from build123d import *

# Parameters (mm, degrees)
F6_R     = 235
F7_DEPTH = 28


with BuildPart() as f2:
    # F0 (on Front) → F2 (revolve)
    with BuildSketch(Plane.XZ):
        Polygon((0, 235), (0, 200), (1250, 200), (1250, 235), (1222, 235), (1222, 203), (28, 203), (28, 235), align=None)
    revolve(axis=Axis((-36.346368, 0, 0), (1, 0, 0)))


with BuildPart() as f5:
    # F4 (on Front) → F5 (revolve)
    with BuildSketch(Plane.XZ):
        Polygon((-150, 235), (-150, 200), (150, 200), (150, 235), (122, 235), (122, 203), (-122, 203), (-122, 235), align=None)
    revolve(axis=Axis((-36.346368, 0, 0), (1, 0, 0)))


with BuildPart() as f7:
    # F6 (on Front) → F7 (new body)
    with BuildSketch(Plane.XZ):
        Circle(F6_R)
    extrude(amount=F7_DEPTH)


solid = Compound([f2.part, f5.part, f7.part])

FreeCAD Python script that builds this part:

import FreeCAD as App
import Part
import Sketcher

V = App.Vector
Q = App.Units.Quantity


def add_polygon(sketch, points):
    """Adds a closed chain of lines whose ends are joined by coincident constraints."""
    first, n = sketch.GeometryCount, len(points)
    for a, b in zip(points, points[1:] + points[:1]):
        sketch.addGeometry(Part.LineSegment(App.Vector(*a, 0), App.Vector(*b, 0)), False)
    for i in range(n):
        sketch.addConstraint(Sketcher.Constraint("Coincident", first + i, 2, first + (i + 1) % n, 1))

doc = App.newDocument("Part")
body = doc.addObject("PartDesign::Body", "Body")

# Sketch on XZ plane
sketch1 = body.newObject("Sketcher::SketchObject", "Sketch")
sketch1.AttachmentSupport = (doc.getObject("XZ_Plane"), [""])
sketch1.MapMode = "FlatFace"
add_polygon(sketch1, [(0, 235), (0, 200), (1250, 200), (1250, 235), (1222, 235), (1222, 203), (28, 203), (28, 235)])  # lines 0-7
sketch1.addConstraint([
    Sketcher.Constraint("Vertical", 0),
    Sketcher.Constraint("Horizontal", 1),
    Sketcher.Constraint("Vertical", 2),
    Sketcher.Constraint("Horizontal", 3),
    Sketcher.Constraint("Vertical", 4),
    Sketcher.Constraint("Horizontal", 5),
    Sketcher.Constraint("Vertical", 6),
    Sketcher.Constraint("Horizontal", 7),
    Sketcher.Constraint("PointOnObject", 0, 2, -2),
    Sketcher.Constraint("Horizontal", 3, 2, 6, 2),
    Sketcher.Constraint("Equal", 3, 7),
    Sketcher.Constraint("DistanceX", 1, 1, 1, 2, Q("1250 mm")),
    Sketcher.Constraint("DistanceX", 3, 2, 3, 1, Q("28 mm")),
    Sketcher.Constraint("DistanceY", 0, 2, 0, 1, Q("35 mm")),
    Sketcher.Constraint("DistanceY", 4, 2, 4, 1, Q("32 mm")),
    Sketcher.Constraint("DistanceY", -1, 1, 0, 2, Q("200 mm")),
])
revolution = body.newObject("PartDesign::Revolution", "Revolution")
revolution.Profile = sketch1
revolution.ReferenceAxis = (sketch1, ["H_Axis"])
revolution.Angle = 360
body2 = doc.addObject("PartDesign::Body", "Body001")

# Sketch on XZ plane
sketch2 = body2.newObject("Sketcher::SketchObject", "Sketch001")
sketch2.AttachmentSupport = (doc.getObject("XZ_Plane001"), [""])
sketch2.MapMode = "FlatFace"
add_polygon(sketch2, [(-150, 235), (-150, 200), (150, 200), (150, 235), (122, 235), (122, 203), (-122, 203), (-122, 235)])  # lines 0-7
sketch2.addConstraint([
    Sketcher.Constraint("Vertical", 0),
    Sketcher.Constraint("Horizontal", 1),
    Sketcher.Constraint("Vertical", 2),
    Sketcher.Constraint("Horizontal", 3),
    Sketcher.Constraint("Vertical", 4),
    Sketcher.Constraint("Horizontal", 5),
    Sketcher.Constraint("Vertical", 6),
    Sketcher.Constraint("Horizontal", 7),
    Sketcher.Constraint("Symmetric", 3, 2, 6, 2, -2),
    Sketcher.Constraint("Equal", 3, 7),
    Sketcher.Constraint("DistanceX", 1, 1, 1, 2, Q("300 mm")),
    Sketcher.Constraint("DistanceX", 3, 2, 3, 1, Q("28 mm")),
    Sketcher.Constraint("DistanceY", 0, 2, 0, 1, Q("35 mm")),
    Sketcher.Constraint("DistanceY", 4, 2, 4, 1, Q("32 mm")),
    Sketcher.Constraint("DistanceY", -1, 1, 0, 2, Q("200 mm")),
])
revolution2 = body2.newObject("PartDesign::Revolution", "Revolution001")
revolution2.Profile = sketch2
revolution2.ReferenceAxis = (sketch2, ["H_Axis"])
revolution2.Angle = 360
body3 = doc.addObject("PartDesign::Body", "Body002")

# Sketch on XZ plane
sketch3 = body3.newObject("Sketcher::SketchObject", "Sketch002")
sketch3.AttachmentSupport = (doc.getObject("XZ_Plane002"), [""])
sketch3.MapMode = "FlatFace"
sketch3.addGeometry(Part.Circle(V(0, 0, 0), V(0, 0, 1), 235), False)
sketch3.addConstraint([
    Sketcher.Constraint("Coincident", 0, 3, -1, 1),
    Sketcher.Constraint("Diameter", 0, Q("470 mm")),
])
pad1 = body3.newObject("PartDesign::Pad", "Pad")
pad1.Profile = sketch3
pad1.Length = 28

doc.recompute()
